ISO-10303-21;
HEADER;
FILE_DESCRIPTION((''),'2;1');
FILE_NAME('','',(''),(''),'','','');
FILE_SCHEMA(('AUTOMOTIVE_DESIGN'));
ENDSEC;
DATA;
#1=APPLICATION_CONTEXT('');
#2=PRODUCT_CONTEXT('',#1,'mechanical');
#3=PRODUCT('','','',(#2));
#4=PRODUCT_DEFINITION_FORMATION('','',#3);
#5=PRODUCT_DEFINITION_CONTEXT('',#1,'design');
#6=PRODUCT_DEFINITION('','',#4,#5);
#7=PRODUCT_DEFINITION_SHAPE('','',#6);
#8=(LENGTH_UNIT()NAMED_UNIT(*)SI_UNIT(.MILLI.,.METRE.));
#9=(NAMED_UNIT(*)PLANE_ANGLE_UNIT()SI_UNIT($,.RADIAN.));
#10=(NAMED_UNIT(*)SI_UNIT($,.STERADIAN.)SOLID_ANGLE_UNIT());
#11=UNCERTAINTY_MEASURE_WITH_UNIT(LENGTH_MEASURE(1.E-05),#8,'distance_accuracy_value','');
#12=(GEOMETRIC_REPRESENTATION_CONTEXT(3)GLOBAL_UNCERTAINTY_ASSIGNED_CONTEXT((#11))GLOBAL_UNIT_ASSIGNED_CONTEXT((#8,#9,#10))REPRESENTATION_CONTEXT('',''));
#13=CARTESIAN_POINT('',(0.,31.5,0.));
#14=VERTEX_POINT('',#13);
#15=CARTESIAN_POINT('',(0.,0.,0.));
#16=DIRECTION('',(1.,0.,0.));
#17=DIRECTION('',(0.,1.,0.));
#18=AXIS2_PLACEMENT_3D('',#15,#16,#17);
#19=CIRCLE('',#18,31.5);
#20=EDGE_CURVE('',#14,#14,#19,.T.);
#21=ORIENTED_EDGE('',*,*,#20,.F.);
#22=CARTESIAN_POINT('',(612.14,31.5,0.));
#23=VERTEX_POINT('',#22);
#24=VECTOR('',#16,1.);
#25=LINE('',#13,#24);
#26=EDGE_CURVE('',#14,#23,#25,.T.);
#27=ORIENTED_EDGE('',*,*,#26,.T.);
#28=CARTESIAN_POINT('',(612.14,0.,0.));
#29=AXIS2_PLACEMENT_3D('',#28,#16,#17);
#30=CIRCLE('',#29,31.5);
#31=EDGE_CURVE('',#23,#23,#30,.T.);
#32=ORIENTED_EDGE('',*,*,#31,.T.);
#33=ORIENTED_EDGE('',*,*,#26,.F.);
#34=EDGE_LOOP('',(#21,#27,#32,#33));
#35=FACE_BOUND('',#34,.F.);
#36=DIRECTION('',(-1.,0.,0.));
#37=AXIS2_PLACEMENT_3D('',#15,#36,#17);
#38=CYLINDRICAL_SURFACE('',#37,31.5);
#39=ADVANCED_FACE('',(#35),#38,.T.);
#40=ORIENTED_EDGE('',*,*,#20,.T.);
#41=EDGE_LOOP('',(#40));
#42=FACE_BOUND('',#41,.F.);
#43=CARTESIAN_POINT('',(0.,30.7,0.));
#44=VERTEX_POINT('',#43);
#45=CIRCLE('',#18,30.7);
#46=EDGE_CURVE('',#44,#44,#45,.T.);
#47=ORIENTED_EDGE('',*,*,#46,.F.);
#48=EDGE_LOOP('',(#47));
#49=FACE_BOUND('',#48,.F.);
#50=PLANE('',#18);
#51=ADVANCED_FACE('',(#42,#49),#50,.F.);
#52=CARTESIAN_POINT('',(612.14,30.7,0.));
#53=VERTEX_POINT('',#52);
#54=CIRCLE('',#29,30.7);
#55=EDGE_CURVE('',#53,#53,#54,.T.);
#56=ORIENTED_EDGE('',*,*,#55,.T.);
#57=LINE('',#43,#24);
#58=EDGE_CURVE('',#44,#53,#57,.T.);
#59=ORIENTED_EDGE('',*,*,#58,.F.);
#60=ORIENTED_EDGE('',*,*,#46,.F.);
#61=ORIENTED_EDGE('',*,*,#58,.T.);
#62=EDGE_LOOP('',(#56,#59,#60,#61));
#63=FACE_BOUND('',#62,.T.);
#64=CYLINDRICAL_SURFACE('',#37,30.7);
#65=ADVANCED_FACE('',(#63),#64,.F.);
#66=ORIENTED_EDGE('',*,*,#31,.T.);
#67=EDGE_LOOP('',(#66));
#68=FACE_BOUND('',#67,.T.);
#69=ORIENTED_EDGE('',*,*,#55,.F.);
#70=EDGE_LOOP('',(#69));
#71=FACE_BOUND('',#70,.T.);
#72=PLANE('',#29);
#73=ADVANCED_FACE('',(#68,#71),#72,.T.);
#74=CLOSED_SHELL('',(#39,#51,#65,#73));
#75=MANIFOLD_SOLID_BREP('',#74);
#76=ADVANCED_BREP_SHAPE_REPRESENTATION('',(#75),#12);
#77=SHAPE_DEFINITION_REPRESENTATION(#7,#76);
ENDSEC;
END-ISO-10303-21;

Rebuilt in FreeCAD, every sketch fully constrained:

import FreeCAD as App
import Part
import Sketcher
from FreeCAD import Vector

doc = App.newDocument("Part")
params = doc.addObject("Spreadsheet::Sheet", "Params")
for row, (alias, value) in enumerate([
    ("sketch1_diameter", "63 mm"),
    ("sketch1_diameter2", "61.4 mm"),
    ("pad1_length", "612.14 mm"),
], start=1):
    params.set(f"A{row}", alias)
    params.set(f"B{row}", "=" + value)
    params.setAlias(f"B{row}", alias)

body = doc.addObject("PartDesign::Body", "Body")

# Sketch on YZ plane
sketch1 = body.newObject("Sketcher::SketchObject", "Sketch")
sketch1.AttachmentSupport = (doc.getObject("YZ_Plane"), [""])
sketch1.MapMode = "FlatFace"
sketch1.addGeometry(Part.Circle(Vector(0, 0, 0), Vector(0, 0, 1), 32), False)
sketch1.addGeometry(Part.Circle(Vector(0, 0, 0), Vector(0, 0, 1), 31), False)
sketch1.addConstraint(Sketcher.Constraint("Coincident", 0, 3, -1, 1))
sketch1.addConstraint(Sketcher.Constraint("Coincident", 1, 3, -1, 1))
sketch1.addConstraint(Sketcher.Constraint("Diameter", 0, 63.0))
sketch1.addConstraint(Sketcher.Constraint("Diameter", 1, 61.4))
sketch1.setExpression("Constraints[2]", "Params.sketch1_diameter")
sketch1.setExpression("Constraints[3]", "Params.sketch1_diameter2")
pad1 = body.newObject("PartDesign::Pad", "Pad")
pad1.Profile = sketch1
pad1.setExpression("Length", "Params.pad1_length")

doc.recompute()
